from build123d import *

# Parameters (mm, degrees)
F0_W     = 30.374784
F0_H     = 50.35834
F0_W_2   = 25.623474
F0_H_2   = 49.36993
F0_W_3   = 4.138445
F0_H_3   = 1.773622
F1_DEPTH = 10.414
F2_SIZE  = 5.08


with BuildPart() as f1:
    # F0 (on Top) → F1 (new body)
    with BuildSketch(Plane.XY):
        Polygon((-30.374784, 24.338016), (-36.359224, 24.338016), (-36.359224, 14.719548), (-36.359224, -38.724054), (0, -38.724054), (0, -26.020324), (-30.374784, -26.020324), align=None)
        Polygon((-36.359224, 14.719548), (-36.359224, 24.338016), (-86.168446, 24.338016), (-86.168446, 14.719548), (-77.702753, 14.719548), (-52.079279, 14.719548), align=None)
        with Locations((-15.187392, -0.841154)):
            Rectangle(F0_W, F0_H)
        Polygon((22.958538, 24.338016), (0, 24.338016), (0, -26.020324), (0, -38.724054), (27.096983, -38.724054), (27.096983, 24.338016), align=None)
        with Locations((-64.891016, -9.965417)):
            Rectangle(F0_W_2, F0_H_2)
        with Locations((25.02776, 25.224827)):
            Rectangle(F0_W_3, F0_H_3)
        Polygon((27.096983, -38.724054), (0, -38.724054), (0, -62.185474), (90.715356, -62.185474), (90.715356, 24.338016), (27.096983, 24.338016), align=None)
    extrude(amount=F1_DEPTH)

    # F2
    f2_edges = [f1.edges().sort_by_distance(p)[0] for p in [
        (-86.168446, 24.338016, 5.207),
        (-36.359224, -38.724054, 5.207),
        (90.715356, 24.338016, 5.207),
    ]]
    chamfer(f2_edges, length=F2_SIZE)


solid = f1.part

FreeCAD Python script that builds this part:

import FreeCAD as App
import Part
import Sketcher

V = App.Vector
Q = App.Units.Quantity


def edges_at(feature, points):
    """Names of the edges that pass closest to the given points."""
    edges = feature.Shape.Edges
    near = lambda p: min(range(len(edges)), key=lambda i: edges[i].distToShape(Part.Vertex(*p))[0])
    return sorted({f"Edge{near(p) + 1}" for p in points})


def add_polygon(sketch, points):
    """Adds a closed chain of lines whose ends are joined by coincident constraints."""
    first, n = sketch.GeometryCount, len(points)
    for a, b in zip(points, points[1:] + points[:1]):
        sketch.addGeometry(Part.LineSegment(App.Vector(*a, 0), App.Vector(*b, 0)), False)
    for i in range(n):
        sketch.addConstraint(Sketcher.Constraint("Coincident", first + i, 2, first + (i + 1) % n, 1))

doc = App.newDocument("Part")
body = doc.addObject("PartDesign::Body", "Body")

sketch1 = doc.addObject("Sketcher::SketchObject", "Sketch")
body.addObject(sketch1)
sketch1.AttachmentSupport = (doc.XY_Plane, [""])
sketch1.MapMode = "FlatFace"
add_polygon(sketch1, [(-86.2, 24.3), (-86.2, 14.7), (-77.7, 14.7), (-77.7, -34.7), (-52.1, -34.7), (-52.1, 14.7), (-36.4, 14.7), (-36.4, -38.7), (0, -38.7), (0, -62.2), (90.7, -62.2), (90.7, 24.3), (27.1, 24.3), (27.1, 26.1), (23, 26.1), (23, 24.3)])
sketch1.addConstraint(Sketcher.Constraint("Vertical", 0))
sketch1.addConstraint(Sketcher.Constraint("Horizontal", 1))
sketch1.addConstraint(Sketcher.Constraint("Vertical", 2))
sketch1.addConstraint(Sketcher.Constraint("Horizontal", 3))
sketch1.addConstraint(Sketcher.Constraint("Vertical", 4))
sketch1.addConstraint(Sketcher.Constraint("Horizontal", 5))
sketch1.addConstraint(Sketcher.Constraint("Vertical", 6))
sketch1.addConstraint(Sketcher.Constraint("Horizontal", 7))
sketch1.addConstraint(Sketcher.Constraint("Vertical", 8))
sketch1.addConstraint(Sketcher.Constraint("Horizontal", 9))
sketch1.addConstraint(Sketcher.Constraint("Vertical", 10))
sketch1.addConstraint(Sketcher.Constraint("Horizontal", 11))
sketch1.addConstraint(Sketcher.Constraint("Vertical", 12))
sketch1.addConstraint(Sketcher.Constraint("Horizontal", 13))
sketch1.addConstraint(Sketcher.Constraint("Vertical", 14))
sketch1.addConstraint(Sketcher.Constraint("Horizontal", 15))
sketch1.addConstraint(Sketcher.Constraint("PointOnObject", 7, 2, -2))
sketch1.addConstraint(Sketcher.Constraint("Horizontal", 1, 2, 4, 2))
sketch1.addConstraint(Sketcher.Constraint("Horizontal", 11, 2, 14, 2))
sketch1.addConstraint(Sketcher.Constraint("DistanceX", 5, 1, 5, 2, Q("0.6188998 in")))
sketch1.addConstraint(Sketcher.Constraint("DistanceY", 6, 2, 6, 1, 53.443602))
sketch1.addConstraint(Sketcher.Constraint("DistanceY", 2, 2, 2, 1, 49.36993))
sketch1.addConstraint(Sketcher.Constraint("DistanceY", 8, 2, 8, 1, 23.46142))
sketch1.addConstraint(Sketcher.Constraint("DistanceY", 10, 1, 10, 2, 86.52349))
sketch1.addConstraint(Sketcher.Constraint("DistanceY", 12, 1, 12, 2, 1.773622))
sketch1.addConstraint(Sketcher.Constraint("DistanceX", 1, 1, 1, 2, 8.465693))
sketch1.addConstraint(Sketcher.Constraint("DistanceX", 3, 1, 3, 2, 25.623474))
sketch1.addConstraint(Sketcher.Constraint("DistanceX", 7, 1, 7, 2, 36.359224))
sketch1.addConstraint(Sketcher.Constraint("DistanceX", 9, 1, 9, 2, 90.715356))
sketch1.addConstraint(Sketcher.Constraint("DistanceX", 11, 2, 11, 1, 63.618374))
sketch1.addConstraint(Sketcher.Constraint("DistanceX", 13, 2, 13, 1, 4.138445))
sketch1.addConstraint(Sketcher.Constraint("DistanceY", -1, 1, 0, 2, 14.719548))
pad1 = doc.addObject("PartDesign::Pad", "Pad")
body.addObject(pad1)
pad1.Profile = sketch1
pad1.Length = Q("0.41 in")
doc.recompute()

chamfer = doc.addObject("PartDesign::Chamfer", "Chamfer")
body.addObject(chamfer)
chamfer.Base = (pad1, edges_at(pad1, [(-86.168, 24.338, 5.207), (-36.359, -38.724, 5.207), (90.715, 24.338, 5.207)]))
chamfer.Size = Q("0.2 in")

doc.recompute()
